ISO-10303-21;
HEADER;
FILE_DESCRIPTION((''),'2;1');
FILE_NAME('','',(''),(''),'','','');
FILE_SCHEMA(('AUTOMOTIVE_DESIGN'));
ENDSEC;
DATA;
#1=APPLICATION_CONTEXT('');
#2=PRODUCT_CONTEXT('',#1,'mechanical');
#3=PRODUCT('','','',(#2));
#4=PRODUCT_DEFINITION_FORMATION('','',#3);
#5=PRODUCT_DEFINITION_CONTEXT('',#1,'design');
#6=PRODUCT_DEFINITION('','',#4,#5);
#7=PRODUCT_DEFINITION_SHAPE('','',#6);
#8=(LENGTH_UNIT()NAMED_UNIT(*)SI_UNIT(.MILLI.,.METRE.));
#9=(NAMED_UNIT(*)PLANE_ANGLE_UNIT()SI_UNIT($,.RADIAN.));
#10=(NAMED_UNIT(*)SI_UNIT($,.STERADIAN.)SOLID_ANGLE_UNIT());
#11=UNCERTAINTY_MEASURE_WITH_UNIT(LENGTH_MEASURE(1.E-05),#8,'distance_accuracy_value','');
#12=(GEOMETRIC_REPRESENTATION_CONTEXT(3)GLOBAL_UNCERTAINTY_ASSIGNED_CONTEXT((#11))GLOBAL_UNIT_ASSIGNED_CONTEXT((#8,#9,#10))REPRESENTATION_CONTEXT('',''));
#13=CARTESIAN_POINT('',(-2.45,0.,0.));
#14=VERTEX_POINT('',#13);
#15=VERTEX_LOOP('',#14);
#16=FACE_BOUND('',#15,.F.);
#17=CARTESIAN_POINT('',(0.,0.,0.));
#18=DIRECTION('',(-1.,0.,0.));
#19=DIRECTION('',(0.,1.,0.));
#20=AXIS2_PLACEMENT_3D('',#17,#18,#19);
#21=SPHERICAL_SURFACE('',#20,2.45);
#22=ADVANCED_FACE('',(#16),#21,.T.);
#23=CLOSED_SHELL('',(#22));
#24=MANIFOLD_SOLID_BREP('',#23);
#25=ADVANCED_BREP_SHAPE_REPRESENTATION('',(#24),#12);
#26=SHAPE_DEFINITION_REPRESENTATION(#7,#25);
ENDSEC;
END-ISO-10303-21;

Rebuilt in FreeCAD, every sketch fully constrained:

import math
import FreeCAD as App
import Part
import Sketcher

V = App.Vector

doc = App.newDocument("Part")
body = doc.addObject("PartDesign::Body", "Body")

sketch1 = doc.addObject("Sketcher::SketchObject", "Sketch")
body.addObject(sketch1)
sketch1.AttachmentSupport = (doc.XY_Plane, [""])
sketch1.MapMode = "FlatFace"
sketch1.addGeometry(Part.LineSegment(V(-2.5, 0, 0), V(2.5, 0, 0)), False)
sketch1.addGeometry(Part.ArcOfCircle(Part.Circle(V(0, 0, 0), V(0, 0, 1), 2.5), math.radians(0), math.radians(180)), False)
sketch1.addConstraint(Sketcher.Constraint("Coincident", 0, 1, 1, 2))
sketch1.addConstraint(Sketcher.Constraint("Coincident", 1, 1, 0, 2))
sketch1.addConstraint(Sketcher.Constraint("Horizontal", 0))
sketch1.addConstraint(Sketcher.Constraint("Coincident", 1, 3, -1, 1))
sketch1.addConstraint(Sketcher.Constraint("PointOnObject", 0, 1, -1))
sketch1.addConstraint(Sketcher.Constraint("Radius", 1, 2.45))
revolution = doc.addObject("PartDesign::Revolution", "Revolution")
body.addObject(revolution)
revolution.Profile = sketch1
revolution.ReferenceAxis = (sketch1, ["H_Axis"])
revolution.Angle = 360

doc.recompute()
